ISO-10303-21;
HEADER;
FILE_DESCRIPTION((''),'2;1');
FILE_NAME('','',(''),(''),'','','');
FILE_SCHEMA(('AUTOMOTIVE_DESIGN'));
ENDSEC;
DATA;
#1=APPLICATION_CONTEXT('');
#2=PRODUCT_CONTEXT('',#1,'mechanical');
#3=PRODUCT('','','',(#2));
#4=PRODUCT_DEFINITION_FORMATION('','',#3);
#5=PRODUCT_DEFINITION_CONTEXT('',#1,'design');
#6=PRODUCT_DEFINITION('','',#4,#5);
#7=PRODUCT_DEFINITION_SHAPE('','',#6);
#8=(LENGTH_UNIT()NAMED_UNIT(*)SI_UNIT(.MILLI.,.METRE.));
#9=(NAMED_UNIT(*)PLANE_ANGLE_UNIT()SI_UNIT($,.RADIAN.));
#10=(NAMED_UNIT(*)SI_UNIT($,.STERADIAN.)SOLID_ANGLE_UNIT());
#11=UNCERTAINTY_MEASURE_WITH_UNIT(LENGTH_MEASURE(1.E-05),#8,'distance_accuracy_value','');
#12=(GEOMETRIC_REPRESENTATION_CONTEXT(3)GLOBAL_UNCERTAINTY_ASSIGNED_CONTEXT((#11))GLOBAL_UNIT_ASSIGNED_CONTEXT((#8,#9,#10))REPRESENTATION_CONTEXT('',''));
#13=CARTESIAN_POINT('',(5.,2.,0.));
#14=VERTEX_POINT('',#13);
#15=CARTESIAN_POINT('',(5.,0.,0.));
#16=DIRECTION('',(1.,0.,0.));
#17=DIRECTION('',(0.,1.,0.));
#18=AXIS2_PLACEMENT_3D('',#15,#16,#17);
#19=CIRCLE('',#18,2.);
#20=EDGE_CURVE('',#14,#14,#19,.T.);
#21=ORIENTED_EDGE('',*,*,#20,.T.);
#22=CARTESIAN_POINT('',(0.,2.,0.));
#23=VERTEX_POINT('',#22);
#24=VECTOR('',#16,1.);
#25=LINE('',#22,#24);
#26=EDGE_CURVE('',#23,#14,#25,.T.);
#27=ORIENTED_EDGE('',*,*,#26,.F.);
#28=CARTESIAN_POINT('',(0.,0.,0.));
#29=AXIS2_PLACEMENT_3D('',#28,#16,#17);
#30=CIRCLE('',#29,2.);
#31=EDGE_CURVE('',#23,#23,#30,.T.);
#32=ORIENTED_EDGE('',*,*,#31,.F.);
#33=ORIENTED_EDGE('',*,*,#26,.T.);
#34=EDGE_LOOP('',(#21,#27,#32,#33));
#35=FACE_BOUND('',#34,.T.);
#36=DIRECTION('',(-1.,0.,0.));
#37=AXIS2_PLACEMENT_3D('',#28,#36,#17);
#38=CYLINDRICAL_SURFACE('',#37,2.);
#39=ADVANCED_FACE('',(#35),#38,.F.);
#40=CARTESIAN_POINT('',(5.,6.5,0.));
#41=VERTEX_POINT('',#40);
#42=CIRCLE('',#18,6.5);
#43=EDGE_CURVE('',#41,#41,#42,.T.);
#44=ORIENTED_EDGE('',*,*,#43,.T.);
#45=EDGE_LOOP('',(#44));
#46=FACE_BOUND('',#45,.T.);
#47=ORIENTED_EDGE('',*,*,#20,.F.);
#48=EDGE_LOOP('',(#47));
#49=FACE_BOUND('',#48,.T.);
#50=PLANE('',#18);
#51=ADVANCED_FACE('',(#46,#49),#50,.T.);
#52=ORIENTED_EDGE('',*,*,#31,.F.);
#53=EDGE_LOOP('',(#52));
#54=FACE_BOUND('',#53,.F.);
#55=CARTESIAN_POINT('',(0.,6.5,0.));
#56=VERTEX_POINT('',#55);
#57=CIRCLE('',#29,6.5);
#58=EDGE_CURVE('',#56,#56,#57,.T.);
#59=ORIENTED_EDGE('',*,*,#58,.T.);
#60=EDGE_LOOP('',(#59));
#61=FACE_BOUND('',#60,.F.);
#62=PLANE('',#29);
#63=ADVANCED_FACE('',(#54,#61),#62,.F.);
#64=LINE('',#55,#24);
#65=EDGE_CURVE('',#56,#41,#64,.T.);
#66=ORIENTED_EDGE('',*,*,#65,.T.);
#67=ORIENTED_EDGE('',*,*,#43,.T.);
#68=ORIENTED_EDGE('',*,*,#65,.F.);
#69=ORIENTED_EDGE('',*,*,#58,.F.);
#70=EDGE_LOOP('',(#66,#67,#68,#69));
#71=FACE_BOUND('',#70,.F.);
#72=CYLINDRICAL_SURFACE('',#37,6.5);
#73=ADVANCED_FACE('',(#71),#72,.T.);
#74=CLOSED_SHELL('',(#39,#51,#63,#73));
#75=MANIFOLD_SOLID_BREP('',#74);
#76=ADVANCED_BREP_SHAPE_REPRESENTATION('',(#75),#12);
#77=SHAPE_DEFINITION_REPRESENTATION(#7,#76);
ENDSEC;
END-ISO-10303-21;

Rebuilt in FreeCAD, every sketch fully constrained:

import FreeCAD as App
import Part
import Sketcher

V = App.Vector
Q = App.Units.Quantity

doc = App.newDocument("Part")
body = doc.addObject("PartDesign::Body", "Body")

# Sketch on YZ plane
sketch1 = doc.addObject("Sketcher::SketchObject", "Sketch")
body.addObject(sketch1)
sketch1.AttachmentSupport = (doc.YZ_Plane, [""])
sketch1.MapMode = "FlatFace"
sketch1.addGeometry(Part.Circle(V(0, 0, 0), V(0, 0, 1), 6.5), False)
sketch1.addGeometry(Part.Circle(V(0, 0, 0), V(0, 0, 1), 2), False)
sketch1.addConstraint(Sketcher.Constraint("Coincident", 0, 3, -1, 1))
sketch1.addConstraint(Sketcher.Constraint("Coincident", 1, 3, -1, 1))
sketch1.addConstraint(Sketcher.Constraint("Diameter", 0, Q("13 mm")))
sketch1.addConstraint(Sketcher.Constraint("Diameter", 1, Q("4 mm")))
pad1 = doc.addObject("PartDesign::Pad", "Pad")
body.addObject(pad1)
pad1.Profile = sketch1
pad1.Length = 5

doc.recompute()
